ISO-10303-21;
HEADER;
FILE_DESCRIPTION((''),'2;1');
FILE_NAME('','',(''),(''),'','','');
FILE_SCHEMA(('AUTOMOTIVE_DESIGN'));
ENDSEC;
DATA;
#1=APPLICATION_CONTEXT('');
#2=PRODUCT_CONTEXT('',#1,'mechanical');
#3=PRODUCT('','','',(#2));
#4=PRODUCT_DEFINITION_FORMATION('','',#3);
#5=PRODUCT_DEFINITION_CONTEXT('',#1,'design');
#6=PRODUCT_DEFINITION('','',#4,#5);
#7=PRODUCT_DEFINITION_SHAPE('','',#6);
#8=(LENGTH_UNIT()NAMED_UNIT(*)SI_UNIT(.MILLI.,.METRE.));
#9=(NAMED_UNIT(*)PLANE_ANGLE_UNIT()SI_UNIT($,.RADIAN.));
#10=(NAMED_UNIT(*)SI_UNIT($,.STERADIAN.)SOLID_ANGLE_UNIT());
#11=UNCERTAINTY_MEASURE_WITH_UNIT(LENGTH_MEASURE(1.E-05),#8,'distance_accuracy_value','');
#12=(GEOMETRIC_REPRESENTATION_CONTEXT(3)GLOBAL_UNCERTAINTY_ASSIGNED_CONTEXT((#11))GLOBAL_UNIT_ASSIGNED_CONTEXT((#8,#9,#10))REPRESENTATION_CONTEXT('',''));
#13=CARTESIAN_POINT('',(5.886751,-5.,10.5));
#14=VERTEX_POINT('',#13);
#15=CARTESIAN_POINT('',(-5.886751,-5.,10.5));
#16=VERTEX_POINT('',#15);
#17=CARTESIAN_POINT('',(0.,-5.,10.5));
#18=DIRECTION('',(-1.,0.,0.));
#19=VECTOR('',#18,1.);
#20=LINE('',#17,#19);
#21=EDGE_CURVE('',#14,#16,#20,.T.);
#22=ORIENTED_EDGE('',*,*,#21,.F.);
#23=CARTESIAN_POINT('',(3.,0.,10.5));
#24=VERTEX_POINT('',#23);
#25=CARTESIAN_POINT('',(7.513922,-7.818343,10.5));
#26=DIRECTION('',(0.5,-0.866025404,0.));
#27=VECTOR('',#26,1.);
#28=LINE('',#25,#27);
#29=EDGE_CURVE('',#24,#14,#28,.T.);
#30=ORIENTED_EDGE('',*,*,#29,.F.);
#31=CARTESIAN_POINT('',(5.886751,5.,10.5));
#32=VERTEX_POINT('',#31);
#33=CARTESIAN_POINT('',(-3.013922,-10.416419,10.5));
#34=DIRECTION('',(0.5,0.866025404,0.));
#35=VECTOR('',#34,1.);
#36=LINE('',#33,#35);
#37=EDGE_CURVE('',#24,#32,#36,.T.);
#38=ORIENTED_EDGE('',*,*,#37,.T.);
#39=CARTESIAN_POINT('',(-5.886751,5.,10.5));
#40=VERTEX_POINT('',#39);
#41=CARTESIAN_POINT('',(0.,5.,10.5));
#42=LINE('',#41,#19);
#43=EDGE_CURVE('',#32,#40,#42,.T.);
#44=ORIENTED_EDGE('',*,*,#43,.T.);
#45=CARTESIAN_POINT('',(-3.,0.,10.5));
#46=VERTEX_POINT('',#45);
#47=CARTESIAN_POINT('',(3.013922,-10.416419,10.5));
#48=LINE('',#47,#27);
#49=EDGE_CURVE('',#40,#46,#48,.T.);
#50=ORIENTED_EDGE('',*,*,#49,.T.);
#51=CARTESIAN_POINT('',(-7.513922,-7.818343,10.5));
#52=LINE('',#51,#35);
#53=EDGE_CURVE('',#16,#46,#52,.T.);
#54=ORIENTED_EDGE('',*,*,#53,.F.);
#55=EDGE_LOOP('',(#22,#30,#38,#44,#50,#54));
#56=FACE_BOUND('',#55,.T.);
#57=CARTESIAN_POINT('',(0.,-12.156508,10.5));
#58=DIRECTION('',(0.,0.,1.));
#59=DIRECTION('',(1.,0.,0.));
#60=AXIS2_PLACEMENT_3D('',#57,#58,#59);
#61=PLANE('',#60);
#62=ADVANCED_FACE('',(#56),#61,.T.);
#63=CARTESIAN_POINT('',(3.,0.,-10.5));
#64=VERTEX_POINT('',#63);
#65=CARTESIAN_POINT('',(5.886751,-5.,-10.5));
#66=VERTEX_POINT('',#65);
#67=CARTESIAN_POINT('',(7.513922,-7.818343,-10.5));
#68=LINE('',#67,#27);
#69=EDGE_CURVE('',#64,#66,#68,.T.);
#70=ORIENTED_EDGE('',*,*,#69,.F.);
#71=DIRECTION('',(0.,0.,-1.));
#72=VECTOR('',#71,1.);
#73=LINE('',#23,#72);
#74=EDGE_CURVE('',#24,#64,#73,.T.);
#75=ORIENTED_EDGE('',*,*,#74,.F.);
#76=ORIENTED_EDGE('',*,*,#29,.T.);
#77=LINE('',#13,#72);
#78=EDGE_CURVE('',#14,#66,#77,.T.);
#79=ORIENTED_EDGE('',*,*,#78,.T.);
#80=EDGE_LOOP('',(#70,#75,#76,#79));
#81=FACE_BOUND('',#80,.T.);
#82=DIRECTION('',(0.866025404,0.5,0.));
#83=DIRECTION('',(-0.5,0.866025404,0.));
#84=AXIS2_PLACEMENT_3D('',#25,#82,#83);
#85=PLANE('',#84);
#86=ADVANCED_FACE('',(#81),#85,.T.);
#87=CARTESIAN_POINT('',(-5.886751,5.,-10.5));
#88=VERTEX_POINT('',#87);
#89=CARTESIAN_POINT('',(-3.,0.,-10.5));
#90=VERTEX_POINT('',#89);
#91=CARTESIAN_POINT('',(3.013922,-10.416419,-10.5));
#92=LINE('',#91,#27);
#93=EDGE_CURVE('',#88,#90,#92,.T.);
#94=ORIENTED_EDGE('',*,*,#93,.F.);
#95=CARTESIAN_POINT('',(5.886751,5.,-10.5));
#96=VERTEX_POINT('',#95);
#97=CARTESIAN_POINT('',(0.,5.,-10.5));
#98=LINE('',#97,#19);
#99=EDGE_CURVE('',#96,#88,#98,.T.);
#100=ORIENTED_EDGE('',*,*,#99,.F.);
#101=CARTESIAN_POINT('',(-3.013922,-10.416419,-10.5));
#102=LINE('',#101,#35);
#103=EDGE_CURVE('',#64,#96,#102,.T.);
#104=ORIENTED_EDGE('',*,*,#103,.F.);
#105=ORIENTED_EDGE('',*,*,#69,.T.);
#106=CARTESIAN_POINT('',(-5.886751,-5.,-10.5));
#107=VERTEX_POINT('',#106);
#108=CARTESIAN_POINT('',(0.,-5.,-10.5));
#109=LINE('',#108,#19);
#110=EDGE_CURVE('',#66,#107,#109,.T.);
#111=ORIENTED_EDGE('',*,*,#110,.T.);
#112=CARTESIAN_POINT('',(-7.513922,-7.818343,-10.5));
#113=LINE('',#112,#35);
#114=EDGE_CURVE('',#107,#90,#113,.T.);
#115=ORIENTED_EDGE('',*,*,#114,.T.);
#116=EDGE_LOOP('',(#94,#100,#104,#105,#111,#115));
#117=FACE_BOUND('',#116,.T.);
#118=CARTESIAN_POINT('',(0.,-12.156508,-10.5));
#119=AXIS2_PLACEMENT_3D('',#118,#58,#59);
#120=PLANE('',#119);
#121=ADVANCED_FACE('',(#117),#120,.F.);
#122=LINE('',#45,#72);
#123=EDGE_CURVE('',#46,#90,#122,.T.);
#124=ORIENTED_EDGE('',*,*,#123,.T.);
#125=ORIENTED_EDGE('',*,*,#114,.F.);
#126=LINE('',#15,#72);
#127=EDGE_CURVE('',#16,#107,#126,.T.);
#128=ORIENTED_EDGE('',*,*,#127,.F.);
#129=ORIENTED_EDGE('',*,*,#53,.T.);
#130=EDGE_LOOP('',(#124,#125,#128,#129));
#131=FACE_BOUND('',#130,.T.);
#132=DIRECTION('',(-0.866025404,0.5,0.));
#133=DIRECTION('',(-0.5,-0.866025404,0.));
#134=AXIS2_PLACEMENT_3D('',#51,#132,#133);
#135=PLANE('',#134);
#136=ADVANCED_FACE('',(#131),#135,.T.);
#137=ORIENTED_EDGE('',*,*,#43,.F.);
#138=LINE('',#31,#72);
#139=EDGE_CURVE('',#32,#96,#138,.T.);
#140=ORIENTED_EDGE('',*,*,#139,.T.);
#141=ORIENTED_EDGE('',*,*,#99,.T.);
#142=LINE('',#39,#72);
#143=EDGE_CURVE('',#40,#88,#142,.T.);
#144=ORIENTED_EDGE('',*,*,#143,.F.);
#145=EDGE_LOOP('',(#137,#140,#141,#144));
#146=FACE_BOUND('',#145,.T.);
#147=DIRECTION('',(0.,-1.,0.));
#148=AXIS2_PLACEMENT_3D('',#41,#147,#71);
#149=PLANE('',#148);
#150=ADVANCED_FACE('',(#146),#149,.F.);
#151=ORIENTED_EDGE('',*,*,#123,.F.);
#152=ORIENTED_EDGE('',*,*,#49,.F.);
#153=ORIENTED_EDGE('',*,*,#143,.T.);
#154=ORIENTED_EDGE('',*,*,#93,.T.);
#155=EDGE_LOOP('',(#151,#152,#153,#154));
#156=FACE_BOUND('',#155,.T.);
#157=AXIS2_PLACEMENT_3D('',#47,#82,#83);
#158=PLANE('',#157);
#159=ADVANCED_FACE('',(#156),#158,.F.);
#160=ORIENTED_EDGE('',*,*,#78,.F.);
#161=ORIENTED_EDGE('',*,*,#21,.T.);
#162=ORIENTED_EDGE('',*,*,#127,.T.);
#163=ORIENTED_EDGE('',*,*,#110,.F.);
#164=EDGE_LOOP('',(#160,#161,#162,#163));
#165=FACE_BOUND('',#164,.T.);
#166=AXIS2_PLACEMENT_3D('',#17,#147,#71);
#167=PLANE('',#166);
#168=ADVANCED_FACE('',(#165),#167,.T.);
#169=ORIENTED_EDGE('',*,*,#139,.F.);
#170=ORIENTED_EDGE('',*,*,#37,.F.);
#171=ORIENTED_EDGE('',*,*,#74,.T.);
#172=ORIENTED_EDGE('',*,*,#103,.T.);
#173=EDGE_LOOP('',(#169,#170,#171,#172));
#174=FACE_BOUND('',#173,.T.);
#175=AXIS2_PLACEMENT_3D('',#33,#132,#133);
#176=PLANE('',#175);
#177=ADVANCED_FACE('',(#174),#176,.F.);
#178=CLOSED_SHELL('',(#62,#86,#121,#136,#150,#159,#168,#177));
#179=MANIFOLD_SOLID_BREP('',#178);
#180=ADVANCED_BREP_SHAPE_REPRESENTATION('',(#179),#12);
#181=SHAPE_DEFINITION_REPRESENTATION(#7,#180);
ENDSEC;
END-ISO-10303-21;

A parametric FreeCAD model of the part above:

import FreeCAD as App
import Part
import Sketcher
from FreeCAD import Vector
Q = App.Units.Quantity


def add_polygon(sketch, points):
    """Adds a closed chain of lines whose ends are joined by coincident constraints."""
    first, n = sketch.GeometryCount, len(points)
    for a, b in zip(points, points[1:] + points[:1]):
        sketch.addGeometry(Part.LineSegment(App.Vector(*a, 0), App.Vector(*b, 0)), False)
    for i in range(n):
        sketch.addConstraint(Sketcher.Constraint("Coincident", first + i, 2, first + (i + 1) % n, 1))

doc = App.newDocument("Part")
body = doc.addObject("PartDesign::Body", "Body")

# Sketch on XY plane
sketch1 = body.newObject("Sketcher::SketchObject", "Sketch")
sketch1.AttachmentSupport = (doc.getObject("XY_Plane"), [""])
sketch1.MapMode = "FlatFace"
add_polygon(sketch1, [(6, -5), (3, 0), (6, 5), (-6, 5), (-3, 0), (-6, -5)])  # lines 0-5
sketch1.addConstraint([
    Sketcher.Constraint("Horizontal", 2),
    Sketcher.Constraint("Horizontal", 5),
    Sketcher.Constraint("Symmetric", 0, 2, 3, 2, -1, 1),
    Sketcher.Constraint("Symmetric", 1, 2, 4, 2, -1, 1),
    Sketcher.Constraint("PointOnObject", 0, 2, -1),
    Sketcher.Constraint("Parallel", 0, 3),
    Sketcher.Constraint("Vertical", 2, 2, 4, 2),
    Sketcher.Constraint("Angle", 0, Q("120 deg")),
    Sketcher.Constraint("DistanceX", -1, 1, 0, 2, Q("3 mm")),
    Sketcher.Constraint("DistanceY", -1, 1, 1, 2, Q("5 mm")),
])
pad1 = body.newObject("PartDesign::Pad", "Pad")
pad1.Profile = sketch1
pad1.Length = 21
pad1.Midplane = True

doc.recompute()
